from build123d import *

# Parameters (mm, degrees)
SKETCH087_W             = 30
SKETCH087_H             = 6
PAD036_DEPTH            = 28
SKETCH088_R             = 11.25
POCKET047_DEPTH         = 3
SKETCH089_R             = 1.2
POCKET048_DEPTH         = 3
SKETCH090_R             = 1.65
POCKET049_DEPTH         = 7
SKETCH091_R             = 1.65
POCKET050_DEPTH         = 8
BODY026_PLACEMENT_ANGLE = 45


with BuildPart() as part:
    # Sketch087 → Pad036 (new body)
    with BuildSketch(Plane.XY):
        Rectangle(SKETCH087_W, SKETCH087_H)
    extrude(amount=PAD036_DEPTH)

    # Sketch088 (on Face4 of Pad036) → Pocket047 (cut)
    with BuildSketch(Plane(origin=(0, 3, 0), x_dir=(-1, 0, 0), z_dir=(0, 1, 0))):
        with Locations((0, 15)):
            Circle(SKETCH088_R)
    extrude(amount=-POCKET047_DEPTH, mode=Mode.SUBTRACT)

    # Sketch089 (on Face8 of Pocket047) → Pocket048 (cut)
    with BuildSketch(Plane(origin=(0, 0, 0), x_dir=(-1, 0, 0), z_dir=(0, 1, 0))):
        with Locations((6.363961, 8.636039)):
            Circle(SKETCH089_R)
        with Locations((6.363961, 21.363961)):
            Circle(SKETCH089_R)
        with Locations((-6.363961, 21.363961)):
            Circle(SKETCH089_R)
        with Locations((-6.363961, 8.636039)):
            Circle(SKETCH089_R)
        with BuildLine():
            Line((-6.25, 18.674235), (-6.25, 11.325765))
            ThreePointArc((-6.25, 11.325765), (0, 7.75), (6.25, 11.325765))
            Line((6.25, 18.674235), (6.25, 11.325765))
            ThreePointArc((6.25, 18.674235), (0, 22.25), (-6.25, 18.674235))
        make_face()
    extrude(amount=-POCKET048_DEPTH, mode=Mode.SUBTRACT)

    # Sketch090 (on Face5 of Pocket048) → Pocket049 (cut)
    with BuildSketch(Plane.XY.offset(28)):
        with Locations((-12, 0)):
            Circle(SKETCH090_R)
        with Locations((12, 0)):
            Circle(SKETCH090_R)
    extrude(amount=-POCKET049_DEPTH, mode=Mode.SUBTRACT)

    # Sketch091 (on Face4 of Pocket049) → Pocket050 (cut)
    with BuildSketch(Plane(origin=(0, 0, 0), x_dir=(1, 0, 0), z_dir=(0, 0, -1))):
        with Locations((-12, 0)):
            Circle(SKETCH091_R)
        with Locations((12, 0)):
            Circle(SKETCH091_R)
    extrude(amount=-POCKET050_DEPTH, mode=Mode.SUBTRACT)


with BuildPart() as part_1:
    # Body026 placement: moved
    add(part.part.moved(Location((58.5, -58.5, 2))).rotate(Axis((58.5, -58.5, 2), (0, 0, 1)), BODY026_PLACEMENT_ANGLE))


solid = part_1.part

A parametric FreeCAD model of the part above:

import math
import FreeCAD as App
import Part
import Sketcher
from FreeCAD import Vector


def add_polygon(sketch, points):
    """Adds a closed chain of lines whose ends are joined by coincident constraints."""
    first, n = sketch.GeometryCount, len(points)
    for a, b in zip(points, points[1:] + points[:1]):
        sketch.addGeometry(Part.LineSegment(App.Vector(*a, 0), App.Vector(*b, 0)), False)
    for i in range(n):
        sketch.addConstraint(Sketcher.Constraint("Coincident", first + i, 2, first + (i + 1) % n, 1))

doc = App.newDocument("Part")
body = doc.addObject("PartDesign::Body", "Body")

# Sketch on XY plane
sketch1 = body.newObject("Sketcher::SketchObject", "Sketch")
sketch1.AttachmentSupport = (doc.getObject("XY_Plane"), [""])
sketch1.MapMode = "FlatFace"
add_polygon(sketch1, [(-15, 3), (-15, -3), (15, -3), (15, 3)])  # lines 0-3
sketch1.addConstraint(Sketcher.Constraint("Vertical", 0))
sketch1.addConstraint(Sketcher.Constraint("Horizontal", 1))
sketch1.addConstraint(Sketcher.Constraint("Vertical", 2))
sketch1.addConstraint(Sketcher.Constraint("Horizontal", 3))
sketch1.addConstraint(Sketcher.Constraint("Symmetric", 0, 2, 2, 2, -1, 1))
sketch1.addConstraint(Sketcher.Constraint("DistanceX", 1, 1, 1, 2, 30.0))
sketch1.addConstraint(Sketcher.Constraint("DistanceY", 0, 2, 0, 1, 6.0))
pad1 = body.newObject("PartDesign::Pad", "Pad")
pad1.Profile = sketch1
pad1.Length = 28

# Sketch on XZ plane
sketch2 = body.newObject("Sketcher::SketchObject", "Sketch001")
sketch2.AttachmentSupport = (doc.getObject("XZ_Plane"), [""])
sketch2.MapMode = "FlatFace"
sketch2.AttachmentOffset = App.Placement(Vector(0, 0, -3), App.Rotation())
sketch2.addGeometry(Part.Circle(Vector(0, 15, 0), Vector(0, 0, 1), 11), False)
sketch2.addConstraint(Sketcher.Constraint("PointOnObject", 0, 3, -2))
sketch2.addConstraint(Sketcher.Constraint("Diameter", 0, 22.5))
sketch2.addConstraint(Sketcher.Constraint("DistanceY", -1, 1, 0, 3, 15.0))
pocket1 = body.newObject("PartDesign::Pocket", "Pocket")
pocket1.Profile = sketch2
pocket1.Length = 3
pocket1.Reversed = True

# Sketch on XZ plane
sketch3 = body.newObject("Sketcher::SketchObject", "Sketch002")
sketch3.AttachmentSupport = (doc.getObject("XZ_Plane"), [""])
sketch3.MapMode = "FlatFace"
sketch3.addGeometry(Part.Circle(Vector(-6.4, 8.6, 0), Vector(0, 0, 1), 1.2), False)
sketch3.addGeometry(Part.Circle(Vector(-6.4, 21.4, 0), Vector(0, 0, 1), 1.2), False)
sketch3.addGeometry(Part.Circle(Vector(6.4, 21.4, 0), Vector(0, 0, 1), 1.2), False)
sketch3.addGeometry(Part.Circle(Vector(6.4, 8.6, 0), Vector(0, 0, 1), 1.2), False)
sketch3.addGeometry(Part.LineSegment(Vector(6.2, 18.7, 0), Vector(6.2, 11.3, 0)), False)
sketch3.addGeometry(Part.ArcOfCircle(Part.Circle(Vector(0, 15, 0), Vector(0, 0, 1), 7.3), math.radians(-150), math.radians(-30)), False)
sketch3.addGeometry(Part.LineSegment(Vector(-6.2, 11.3, 0), Vector(-6.2, 18.7, 0)), False)
sketch3.addGeometry(Part.ArcOfCircle(Part.Circle(Vector(0, 15, 0), Vector(0, 0, 1), 7.3), math.radians(30), math.radians(150)), False)
sketch3.addConstraint(Sketcher.Constraint("Coincident", 4, 2, 5, 2))
sketch3.addConstraint(Sketcher.Constraint("Coincident", 5, 1, 6, 1))
sketch3.addConstraint(Sketcher.Constraint("Coincident", 6, 2, 7, 2))
sketch3.addConstraint(Sketcher.Constraint("Coincident", 7, 1, 4, 1))
sketch3.addConstraint(Sketcher.Constraint("Vertical", 4))
sketch3.addConstraint(Sketcher.Constraint("Vertical", 6))
sketch3.addConstraint(Sketcher.Constraint("Coincident", 7, 3, 5, 3))
sketch3.addConstraint(Sketcher.Constraint("Equal", 0, 1))
sketch3.addConstraint(Sketcher.Constraint("Equal", 1, 2))
sketch3.addConstraint(Sketcher.Constraint("Equal", 2, 3))
sketch3.addConstraint(Sketcher.Constraint("Equal", 5, 7))
sketch3.addConstraint(Sketcher.Constraint("Symmetric", 1, 3, 2, 3, -2))
sketch3.addConstraint(Sketcher.Constraint("Symmetric", 0, 3, 3, 3, -2))
sketch3.addConstraint(Sketcher.Constraint("Symmetric", 4, 2, 5, 1, -2))
sketch3.addConstraint(Sketcher.Constraint("Vertical", 0, 3, 1, 3))
sketch3.addConstraint(Sketcher.Constraint("Diameter", 0, 2.4))
sketch3.addConstraint(Sketcher.Constraint("Radius", 5, 7.25))
sketch3.addConstraint(Sketcher.Constraint("DistanceY", -1, 1, 5, 3, 15.0))
sketch3.addConstraint(Sketcher.Constraint("DistanceX", 5, 1, 4, 2, 12.5))
sketch3.addConstraint(Sketcher.Constraint("DistanceX", 0, 3, -1, 1, 6.363961))
sketch3.addConstraint(Sketcher.Constraint("DistanceY", -1, 1, 0, 3, 8.636039))
sketch3.addConstraint(Sketcher.Constraint("DistanceY", -1, 1, 1, 3, 21.363961))
pocket2 = body.newObject("PartDesign::Pocket", "Pocket001")
pocket2.Profile = sketch3
pocket2.Length = 3
pocket2.Reversed = True

# Sketch on XY plane
sketch4 = body.newObject("Sketcher::SketchObject", "Sketch003")
sketch4.AttachmentSupport = (doc.getObject("XY_Plane"), [""])
sketch4.MapMode = "FlatFace"
sketch4.AttachmentOffset = App.Placement(Vector(0, 0, 28), App.Rotation())
sketch4.addGeometry(Part.Circle(Vector(-12, 0, 0), Vector(0, 0, 1), 1.6), False)
sketch4.addGeometry(Part.Circle(Vector(12, 0, 0), Vector(0, 0, 1), 1.6), False)
sketch4.addConstraint(Sketcher.Constraint("Equal", 0, 1))
sketch4.addConstraint(Sketcher.Constraint("Symmetric", 0, 3, 1, 3, -1, 1))
sketch4.addConstraint(Sketcher.Constraint("PointOnObject", 0, 3, -1))
sketch4.addConstraint(Sketcher.Constraint("Diameter", 0, 3.3))
sketch4.addConstraint(Sketcher.Constraint("DistanceX", 0, 3, -1, 1, 12.0))
pocket3 = body.newObject("PartDesign::Pocket", "Pocket002")
pocket3.Profile = sketch4
pocket3.Length = 7

# Sketch on XY plane
sketch5 = body.newObject("Sketcher::SketchObject", "Sketch004")
sketch5.AttachmentSupport = (doc.getObject("XY_Plane"), [""])
sketch5.MapMode = "FlatFace"
sketch5.addGeometry(Part.Circle(Vector(-12, 0, 0), Vector(0, 0, 1), 1.6), False)
sketch5.addGeometry(Part.Circle(Vector(12, 0, 0), Vector(0, 0, 1), 1.6), False)
sketch5.addConstraint(Sketcher.Constraint("Equal", 0, 1))
sketch5.addConstraint(Sketcher.Constraint("Symmetric", 0, 3, 1, 3, -1, 1))
sketch5.addConstraint(Sketcher.Constraint("PointOnObject", 0, 3, -1))
sketch5.addConstraint(Sketcher.Constraint("Diameter", 0, 3.3))
sketch5.addConstraint(Sketcher.Constraint("DistanceX", 0, 3, -1, 1, 12.0))
pocket4 = body.newObject("PartDesign::Pocket", "Pocket003")
pocket4.Profile = sketch5
pocket4.Length = 8
pocket4.Reversed = True
body2 = doc.addObject("PartDesign::Body", "Body001")
doc.recompute()

body.Placement = App.Placement(Vector(58.5, -58.5, 2), App.Rotation(Vector(0, 0, 1), 45))
boolean = body2.newObject("PartDesign::Boolean", "Boolean")
boolean.Type = "Fuse"
boolean.addObjects([body])

doc.recompute()
